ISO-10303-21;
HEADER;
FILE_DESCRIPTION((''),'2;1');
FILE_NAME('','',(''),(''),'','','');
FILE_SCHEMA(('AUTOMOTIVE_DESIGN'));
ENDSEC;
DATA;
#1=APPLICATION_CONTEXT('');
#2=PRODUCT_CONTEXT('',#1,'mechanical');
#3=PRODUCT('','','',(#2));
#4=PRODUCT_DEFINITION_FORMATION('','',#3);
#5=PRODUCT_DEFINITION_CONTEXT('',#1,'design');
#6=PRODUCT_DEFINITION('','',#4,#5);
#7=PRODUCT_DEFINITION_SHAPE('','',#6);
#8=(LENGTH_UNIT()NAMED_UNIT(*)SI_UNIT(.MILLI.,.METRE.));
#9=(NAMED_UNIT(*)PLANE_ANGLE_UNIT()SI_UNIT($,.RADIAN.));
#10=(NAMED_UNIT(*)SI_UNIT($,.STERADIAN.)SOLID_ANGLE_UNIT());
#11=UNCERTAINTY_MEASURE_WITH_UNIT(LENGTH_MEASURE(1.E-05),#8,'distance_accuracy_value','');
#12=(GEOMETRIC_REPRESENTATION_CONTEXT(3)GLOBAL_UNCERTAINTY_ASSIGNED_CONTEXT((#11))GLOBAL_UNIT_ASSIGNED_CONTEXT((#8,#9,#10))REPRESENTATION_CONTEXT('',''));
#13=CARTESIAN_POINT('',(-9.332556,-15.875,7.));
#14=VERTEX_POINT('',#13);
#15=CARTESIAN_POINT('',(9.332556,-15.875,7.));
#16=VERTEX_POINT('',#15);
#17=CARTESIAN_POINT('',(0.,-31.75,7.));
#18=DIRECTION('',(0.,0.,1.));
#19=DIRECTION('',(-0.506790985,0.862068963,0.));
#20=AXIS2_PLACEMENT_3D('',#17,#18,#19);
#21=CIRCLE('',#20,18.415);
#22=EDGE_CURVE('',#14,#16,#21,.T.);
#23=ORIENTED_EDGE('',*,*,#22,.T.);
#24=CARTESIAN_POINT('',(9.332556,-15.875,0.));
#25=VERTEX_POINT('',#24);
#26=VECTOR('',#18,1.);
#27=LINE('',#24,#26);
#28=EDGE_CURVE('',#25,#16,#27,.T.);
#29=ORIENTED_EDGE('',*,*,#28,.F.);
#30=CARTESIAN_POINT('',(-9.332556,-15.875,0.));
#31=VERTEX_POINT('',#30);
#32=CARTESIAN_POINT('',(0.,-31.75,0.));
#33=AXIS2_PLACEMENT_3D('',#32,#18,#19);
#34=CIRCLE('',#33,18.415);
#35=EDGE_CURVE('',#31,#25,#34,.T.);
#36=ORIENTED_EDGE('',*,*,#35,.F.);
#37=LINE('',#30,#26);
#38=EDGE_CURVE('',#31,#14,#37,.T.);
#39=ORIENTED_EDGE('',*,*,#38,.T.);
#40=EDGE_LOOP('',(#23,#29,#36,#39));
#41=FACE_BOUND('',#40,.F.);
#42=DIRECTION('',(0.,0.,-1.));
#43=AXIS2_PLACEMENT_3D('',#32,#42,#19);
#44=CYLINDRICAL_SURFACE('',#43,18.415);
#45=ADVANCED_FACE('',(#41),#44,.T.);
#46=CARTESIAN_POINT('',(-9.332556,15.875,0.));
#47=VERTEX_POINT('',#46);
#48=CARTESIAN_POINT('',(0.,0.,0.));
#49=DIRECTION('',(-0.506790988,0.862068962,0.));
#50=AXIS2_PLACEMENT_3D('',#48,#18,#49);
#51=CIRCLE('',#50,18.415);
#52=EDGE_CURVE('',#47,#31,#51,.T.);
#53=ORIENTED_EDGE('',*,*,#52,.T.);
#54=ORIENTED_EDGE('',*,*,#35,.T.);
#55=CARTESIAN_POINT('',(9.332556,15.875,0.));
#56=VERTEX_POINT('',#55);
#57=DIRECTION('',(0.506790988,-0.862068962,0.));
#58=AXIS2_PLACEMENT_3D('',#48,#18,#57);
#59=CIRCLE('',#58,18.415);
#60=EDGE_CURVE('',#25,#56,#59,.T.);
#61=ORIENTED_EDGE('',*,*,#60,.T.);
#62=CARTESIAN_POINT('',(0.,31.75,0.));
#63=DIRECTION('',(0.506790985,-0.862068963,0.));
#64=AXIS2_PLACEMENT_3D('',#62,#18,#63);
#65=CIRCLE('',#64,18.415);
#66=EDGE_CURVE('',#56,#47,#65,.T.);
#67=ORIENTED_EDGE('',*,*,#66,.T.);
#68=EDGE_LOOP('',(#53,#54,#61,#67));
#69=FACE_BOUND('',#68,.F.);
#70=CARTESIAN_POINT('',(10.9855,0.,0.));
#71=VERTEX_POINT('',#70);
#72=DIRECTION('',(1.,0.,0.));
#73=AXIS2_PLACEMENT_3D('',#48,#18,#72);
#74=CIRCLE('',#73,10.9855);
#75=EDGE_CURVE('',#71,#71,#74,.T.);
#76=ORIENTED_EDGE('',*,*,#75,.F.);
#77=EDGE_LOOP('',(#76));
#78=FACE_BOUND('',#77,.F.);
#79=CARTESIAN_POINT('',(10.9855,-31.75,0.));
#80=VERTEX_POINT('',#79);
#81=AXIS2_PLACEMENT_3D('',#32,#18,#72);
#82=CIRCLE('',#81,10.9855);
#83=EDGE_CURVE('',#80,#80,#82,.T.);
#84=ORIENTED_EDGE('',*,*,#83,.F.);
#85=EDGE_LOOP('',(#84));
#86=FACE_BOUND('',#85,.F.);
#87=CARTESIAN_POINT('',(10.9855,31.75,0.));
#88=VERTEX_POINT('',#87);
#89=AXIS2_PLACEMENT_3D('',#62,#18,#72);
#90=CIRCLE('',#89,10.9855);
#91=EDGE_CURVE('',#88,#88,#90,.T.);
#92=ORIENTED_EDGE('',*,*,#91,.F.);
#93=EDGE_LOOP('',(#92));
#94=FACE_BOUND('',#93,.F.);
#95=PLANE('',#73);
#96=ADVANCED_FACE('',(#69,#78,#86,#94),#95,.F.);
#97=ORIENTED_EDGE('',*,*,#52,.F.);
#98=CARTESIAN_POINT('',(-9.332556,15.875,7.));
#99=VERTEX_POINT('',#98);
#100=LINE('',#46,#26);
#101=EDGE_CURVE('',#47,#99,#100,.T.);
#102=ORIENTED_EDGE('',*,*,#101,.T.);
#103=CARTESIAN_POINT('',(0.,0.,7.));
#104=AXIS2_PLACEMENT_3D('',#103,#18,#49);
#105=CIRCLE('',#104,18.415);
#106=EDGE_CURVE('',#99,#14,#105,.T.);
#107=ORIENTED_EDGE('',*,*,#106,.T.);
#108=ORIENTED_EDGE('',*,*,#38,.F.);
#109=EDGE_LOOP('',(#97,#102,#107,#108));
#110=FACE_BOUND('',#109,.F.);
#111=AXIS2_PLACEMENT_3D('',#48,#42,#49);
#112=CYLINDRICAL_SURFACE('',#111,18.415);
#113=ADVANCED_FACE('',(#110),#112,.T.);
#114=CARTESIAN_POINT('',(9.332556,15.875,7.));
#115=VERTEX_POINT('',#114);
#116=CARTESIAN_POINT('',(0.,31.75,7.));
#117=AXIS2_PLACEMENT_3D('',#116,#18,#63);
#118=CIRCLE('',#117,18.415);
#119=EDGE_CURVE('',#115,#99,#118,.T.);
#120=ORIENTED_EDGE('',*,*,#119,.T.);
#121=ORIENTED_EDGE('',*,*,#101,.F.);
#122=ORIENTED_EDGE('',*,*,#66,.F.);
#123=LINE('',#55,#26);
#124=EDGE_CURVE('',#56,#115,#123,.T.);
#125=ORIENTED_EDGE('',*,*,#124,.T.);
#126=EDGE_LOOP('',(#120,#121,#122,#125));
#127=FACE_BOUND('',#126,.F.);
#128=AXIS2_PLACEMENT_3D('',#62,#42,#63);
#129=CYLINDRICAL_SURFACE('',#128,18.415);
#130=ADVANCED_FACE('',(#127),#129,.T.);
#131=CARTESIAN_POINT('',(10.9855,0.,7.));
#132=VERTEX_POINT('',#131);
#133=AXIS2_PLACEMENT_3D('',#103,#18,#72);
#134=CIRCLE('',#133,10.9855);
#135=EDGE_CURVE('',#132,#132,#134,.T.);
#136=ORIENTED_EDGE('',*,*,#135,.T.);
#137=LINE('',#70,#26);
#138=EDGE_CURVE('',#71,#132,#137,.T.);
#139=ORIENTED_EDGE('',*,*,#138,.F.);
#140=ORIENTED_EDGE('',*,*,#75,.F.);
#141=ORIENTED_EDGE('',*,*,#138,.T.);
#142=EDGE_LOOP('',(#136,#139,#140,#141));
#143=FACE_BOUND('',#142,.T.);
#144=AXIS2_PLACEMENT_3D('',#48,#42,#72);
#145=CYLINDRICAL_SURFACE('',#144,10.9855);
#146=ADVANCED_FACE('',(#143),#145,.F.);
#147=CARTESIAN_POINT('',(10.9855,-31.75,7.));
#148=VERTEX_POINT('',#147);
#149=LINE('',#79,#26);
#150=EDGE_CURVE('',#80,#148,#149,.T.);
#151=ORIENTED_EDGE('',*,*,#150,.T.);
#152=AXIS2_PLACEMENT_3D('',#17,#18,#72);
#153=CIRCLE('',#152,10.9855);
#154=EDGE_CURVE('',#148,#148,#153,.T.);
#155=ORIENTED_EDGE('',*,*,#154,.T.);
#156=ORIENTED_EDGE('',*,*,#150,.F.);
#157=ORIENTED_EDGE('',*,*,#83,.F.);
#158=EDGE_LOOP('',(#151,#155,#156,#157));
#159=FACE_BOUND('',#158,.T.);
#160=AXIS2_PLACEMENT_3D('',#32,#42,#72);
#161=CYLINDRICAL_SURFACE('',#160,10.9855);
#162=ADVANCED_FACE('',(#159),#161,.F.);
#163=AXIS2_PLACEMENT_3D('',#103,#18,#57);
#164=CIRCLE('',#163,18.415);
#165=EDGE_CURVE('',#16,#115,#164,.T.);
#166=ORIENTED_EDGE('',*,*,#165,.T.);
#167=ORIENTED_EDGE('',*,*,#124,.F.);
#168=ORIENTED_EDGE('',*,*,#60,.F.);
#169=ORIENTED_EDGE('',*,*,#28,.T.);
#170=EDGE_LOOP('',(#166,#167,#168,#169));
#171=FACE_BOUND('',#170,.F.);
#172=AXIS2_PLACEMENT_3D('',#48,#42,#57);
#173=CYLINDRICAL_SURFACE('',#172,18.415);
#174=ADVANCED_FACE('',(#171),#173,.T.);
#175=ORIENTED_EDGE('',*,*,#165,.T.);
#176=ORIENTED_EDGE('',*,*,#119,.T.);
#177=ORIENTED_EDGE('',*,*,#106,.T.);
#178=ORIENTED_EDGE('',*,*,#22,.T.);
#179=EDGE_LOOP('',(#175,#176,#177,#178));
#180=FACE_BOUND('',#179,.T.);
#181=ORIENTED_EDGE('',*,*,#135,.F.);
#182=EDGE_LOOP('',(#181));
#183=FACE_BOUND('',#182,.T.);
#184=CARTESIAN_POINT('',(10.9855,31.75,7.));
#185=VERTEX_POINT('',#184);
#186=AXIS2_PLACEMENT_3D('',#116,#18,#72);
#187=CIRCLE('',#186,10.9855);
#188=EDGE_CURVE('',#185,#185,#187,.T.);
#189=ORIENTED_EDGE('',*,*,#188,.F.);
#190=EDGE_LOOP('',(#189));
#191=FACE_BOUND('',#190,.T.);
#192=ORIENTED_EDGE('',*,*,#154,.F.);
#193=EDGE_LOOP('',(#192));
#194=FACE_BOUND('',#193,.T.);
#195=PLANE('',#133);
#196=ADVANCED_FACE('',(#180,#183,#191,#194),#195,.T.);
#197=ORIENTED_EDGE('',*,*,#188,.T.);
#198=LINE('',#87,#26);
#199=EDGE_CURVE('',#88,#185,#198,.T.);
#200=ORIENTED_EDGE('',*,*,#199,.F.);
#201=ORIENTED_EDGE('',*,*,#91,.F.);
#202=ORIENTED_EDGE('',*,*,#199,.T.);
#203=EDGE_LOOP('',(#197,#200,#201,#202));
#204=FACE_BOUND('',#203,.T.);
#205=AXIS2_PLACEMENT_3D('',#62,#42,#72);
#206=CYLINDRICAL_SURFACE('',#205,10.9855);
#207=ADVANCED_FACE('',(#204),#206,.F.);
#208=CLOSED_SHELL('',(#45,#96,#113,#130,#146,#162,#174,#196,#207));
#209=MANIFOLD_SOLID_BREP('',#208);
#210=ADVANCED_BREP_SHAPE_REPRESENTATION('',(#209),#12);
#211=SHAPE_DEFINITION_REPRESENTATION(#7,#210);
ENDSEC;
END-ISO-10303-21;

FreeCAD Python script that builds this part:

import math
import FreeCAD as App
import Part
import Sketcher
from FreeCAD import Vector
Q = App.Units.Quantity

doc = App.newDocument("Part")
body = doc.addObject("PartDesign::Body", "Body")

sketch1 = body.newObject("Sketcher::SketchObject", "Sketch")
sketch1.AttachmentSupport = (doc.getObject("XY_Plane"), [""])
sketch1.MapMode = "FlatFace"
sketch1.addGeometry([
    Part.ArcOfCircle(Part.Circle(Vector(0, 0, 0), Vector(0, 0, 1), 18), math.radians(-60), math.radians(60)),
    Part.ArcOfCircle(Part.Circle(Vector(0, 32, 0), Vector(0, 0, 1), 18), math.radians(-60), math.radians(240)),
    Part.ArcOfCircle(Part.Circle(Vector(0, 0, 0), Vector(0, 0, 1), 18), math.radians(120), math.radians(240)),
    Part.ArcOfCircle(Part.Circle(Vector(0, -32, 0), Vector(0, 0, 1), 18), math.radians(120), math.radians(420)),
    Part.Circle(Vector(0, -32, 0), Vector(0, 0, 1), 11),
    Part.Circle(Vector(0, 0, 0), Vector(0, 0, 1), 11),
    Part.Circle(Vector(0, 32, 0), Vector(0, 0, 1), 11),
], False)
sketch1.addConstraint([
    Sketcher.Constraint("Coincident", 0, 2, 1, 1),
    Sketcher.Constraint("Coincident", 1, 2, 2, 1),
    Sketcher.Constraint("Coincident", 2, 2, 3, 1),
    Sketcher.Constraint("Coincident", 3, 2, 0, 1),
    Sketcher.Constraint("Coincident", 0, 3, -1, 1),
    Sketcher.Constraint("Coincident", 2, 3, -1, 1),
    Sketcher.Constraint("Coincident", 5, 3, -1, 1),
    Sketcher.Constraint("Coincident", 4, 3, 3, 3),
    Sketcher.Constraint("Coincident", 6, 3, 1, 3),
    Sketcher.Constraint("Equal", 0, 1),
    Sketcher.Constraint("Equal", 1, 2),
    Sketcher.Constraint("Equal", 2, 3),
    Sketcher.Constraint("Equal", 4, 5),
    Sketcher.Constraint("Equal", 5, 6),
    Sketcher.Constraint("Symmetric", 1, 3, 3, 3, -1, 1),
    Sketcher.Constraint("PointOnObject", 1, 3, -2),
    Sketcher.Constraint("Diameter", 4, Q("0.865 in")),
    Sketcher.Constraint("Radius", 0, Q("0.725 in")),
    Sketcher.Constraint("DistanceY", 3, 3, 1, 3, Q("2.5 in")),
])
pad1 = body.newObject("PartDesign::Pad", "Pad")
pad1.Profile = sketch1
pad1.Length = 7

doc.recompute()
